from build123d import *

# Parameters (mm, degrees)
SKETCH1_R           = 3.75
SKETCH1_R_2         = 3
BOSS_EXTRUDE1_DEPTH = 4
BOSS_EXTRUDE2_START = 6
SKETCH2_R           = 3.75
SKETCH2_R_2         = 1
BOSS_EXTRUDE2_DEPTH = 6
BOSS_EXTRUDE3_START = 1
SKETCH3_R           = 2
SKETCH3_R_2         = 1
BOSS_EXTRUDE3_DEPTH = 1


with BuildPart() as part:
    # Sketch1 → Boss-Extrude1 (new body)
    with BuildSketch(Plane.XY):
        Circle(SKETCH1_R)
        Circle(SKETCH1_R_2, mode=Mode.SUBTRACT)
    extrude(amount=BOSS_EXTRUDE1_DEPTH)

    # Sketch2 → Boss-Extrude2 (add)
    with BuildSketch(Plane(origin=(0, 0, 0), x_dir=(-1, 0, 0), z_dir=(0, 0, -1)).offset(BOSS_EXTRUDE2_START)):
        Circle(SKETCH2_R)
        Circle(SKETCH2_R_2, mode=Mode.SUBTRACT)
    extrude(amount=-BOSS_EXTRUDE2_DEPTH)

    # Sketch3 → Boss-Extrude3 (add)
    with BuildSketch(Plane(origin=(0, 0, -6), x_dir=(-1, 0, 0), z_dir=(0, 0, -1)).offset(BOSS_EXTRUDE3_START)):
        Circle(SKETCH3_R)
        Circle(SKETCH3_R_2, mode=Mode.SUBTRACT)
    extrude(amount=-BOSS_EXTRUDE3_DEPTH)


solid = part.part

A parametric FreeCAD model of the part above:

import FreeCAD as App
import Part
import Sketcher

V = App.Vector
Q = App.Units.Quantity

doc = App.newDocument("Part")
body = doc.addObject("PartDesign::Body", "Body")

# Sketch on XY plane
sketch1 = body.newObject("Sketcher::SketchObject", "Sketch")
sketch1.AttachmentSupport = (doc.getObject("XY_Plane"), [""])
sketch1.MapMode = "FlatFace"
sketch1.addGeometry([
    Part.Circle(V(0, 0, 0), V(0, 0, 1), 3.8),
    Part.Circle(V(0, 0, 0), V(0, 0, 1), 3),
], False)
sketch1.addConstraint([
    Sketcher.Constraint("Coincident", 0, 3, -1, 1),
    Sketcher.Constraint("Coincident", 1, 3, -1, 1),
    Sketcher.Constraint("Diameter", 1, Q("6 mm")),
    Sketcher.Constraint("Diameter", 0, Q("7.5 mm")),
])
pad1 = body.newObject("PartDesign::Pad", "Pad")
pad1.Profile = sketch1
pad1.Length = 4

# Sketch on XY plane
sketch2 = body.newObject("Sketcher::SketchObject", "Sketch001")
sketch2.AttachmentSupport = (doc.getObject("XY_Plane"), [""])
sketch2.MapMode = "FlatFace"
sketch2.AttachmentOffset = App.Placement(V(0, 0, -6), App.Rotation())
sketch2.addGeometry([
    Part.Circle(V(0, 0, 0), V(0, 0, 1), 3.8),
    Part.Circle(V(0, 0, 0), V(0, 0, 1), 1),
], False)
sketch2.addConstraint([
    Sketcher.Constraint("Coincident", 0, 3, -1, 1),
    Sketcher.Constraint("Coincident", 1, 3, -1, 1),
    Sketcher.Constraint("Diameter", 1, Q("2 mm")),
    Sketcher.Constraint("Diameter", 0, Q("7.5 mm")),
])
pad2 = body.newObject("PartDesign::Pad", "Pad001")
pad2.Profile = sketch2
pad2.Length = 6

# Sketch on XY plane
sketch3 = body.newObject("Sketcher::SketchObject", "Sketch002")
sketch3.AttachmentSupport = (doc.getObject("XY_Plane"), [""])
sketch3.MapMode = "FlatFace"
sketch3.AttachmentOffset = App.Placement(V(0, 0, -7), App.Rotation())
sketch3.addGeometry([
    Part.Circle(V(0, 0, 0), V(0, 0, 1), 2),
    Part.Circle(V(0, 0, 0), V(0, 0, 1), 1),
], False)
sketch3.addConstraint([
    Sketcher.Constraint("Coincident", 0, 3, -1, 1),
    Sketcher.Constraint("Coincident", 1, 3, -1, 1),
    Sketcher.Constraint("Diameter", 0, Q("4 mm")),
    Sketcher.Constraint("Diameter", 1, Q("2 mm")),
])
pad3 = body.newObject("PartDesign::Pad", "Pad002")
pad3.Profile = sketch3
pad3.Length = 1

doc.recompute()
